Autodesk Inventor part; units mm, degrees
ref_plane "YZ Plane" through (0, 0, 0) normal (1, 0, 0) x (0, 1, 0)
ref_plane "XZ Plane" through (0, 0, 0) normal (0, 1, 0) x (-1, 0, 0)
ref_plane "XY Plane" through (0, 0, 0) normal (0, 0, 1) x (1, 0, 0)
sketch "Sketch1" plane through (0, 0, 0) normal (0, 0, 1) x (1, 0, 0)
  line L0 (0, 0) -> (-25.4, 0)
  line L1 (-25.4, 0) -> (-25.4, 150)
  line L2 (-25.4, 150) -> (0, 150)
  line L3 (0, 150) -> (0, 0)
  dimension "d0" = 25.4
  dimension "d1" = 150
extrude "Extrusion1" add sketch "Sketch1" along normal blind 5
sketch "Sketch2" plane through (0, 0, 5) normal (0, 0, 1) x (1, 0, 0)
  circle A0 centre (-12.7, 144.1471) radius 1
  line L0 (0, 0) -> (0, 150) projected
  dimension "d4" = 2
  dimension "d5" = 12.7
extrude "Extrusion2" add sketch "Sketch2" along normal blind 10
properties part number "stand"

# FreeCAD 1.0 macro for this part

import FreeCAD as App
import Part
import Sketcher

V = App.Vector


def add_polygon(sketch, points):
    """Adds a closed chain of lines whose ends are joined by coincident constraints."""
    first, n = sketch.GeometryCount, len(points)
    for a, b in zip(points, points[1:] + points[:1]):
        sketch.addGeometry(Part.LineSegment(App.Vector(*a, 0), App.Vector(*b, 0)), False)
    for i in range(n):
        sketch.addConstraint(Sketcher.Constraint("Coincident", first + i, 2, first + (i + 1) % n, 1))

doc = App.newDocument("Part")
body = doc.addObject("PartDesign::Body", "Body")

# Sketch on XY plane
sketch1 = body.newObject("Sketcher::SketchObject", "Sketch")
sketch1.AttachmentSupport = (doc.getObject("XY_Plane"), [""])
sketch1.MapMode = "FlatFace"
add_polygon(sketch1, [(-25.4, 0), (0, 0), (0, 150), (-25.4, 150)])  # lines 0-3
sketch1.addConstraint([
    Sketcher.Constraint("Horizontal", 0),
    Sketcher.Constraint("Vertical", 1),
    Sketcher.Constraint("Horizontal", 2),
    Sketcher.Constraint("Vertical", 3),
    Sketcher.Constraint("Coincident", 0, 2, -1, 1),
    Sketcher.Constraint("DistanceY", 1, 1, 1, 2, 150.0),
    Sketcher.Constraint("DistanceX", 0, 1, 0, 2, 25.4),
])
pad1 = body.newObject("PartDesign::Pad", "Pad")
pad1.Profile = sketch1
pad1.Length = 5

# Sketch on XY plane
sketch2 = body.newObject("Sketcher::SketchObject", "Sketch001")
sketch2.AttachmentSupport = (doc.getObject("XY_Plane"), [""])
sketch2.MapMode = "FlatFace"
sketch2.AttachmentOffset = App.Placement(V(0, 0, 5), App.Rotation())
sketch2.addGeometry(Part.Circle(V(-12.7, 144.1471, 0), V(0, 0, 1), 1), False)
sketch2.addConstraint([
    Sketcher.Constraint("Diameter", 0, 2.0),
    Sketcher.Constraint("DistanceX", 0, 3, -1, 1, 12.7),
    Sketcher.Constraint("DistanceY", -1, 1, 0, 3, 144.147),
])
pad2 = body.newObject("PartDesign::Pad", "Pad001")
pad2.Profile = sketch2
pad2.Length = 10

doc.recompute()
